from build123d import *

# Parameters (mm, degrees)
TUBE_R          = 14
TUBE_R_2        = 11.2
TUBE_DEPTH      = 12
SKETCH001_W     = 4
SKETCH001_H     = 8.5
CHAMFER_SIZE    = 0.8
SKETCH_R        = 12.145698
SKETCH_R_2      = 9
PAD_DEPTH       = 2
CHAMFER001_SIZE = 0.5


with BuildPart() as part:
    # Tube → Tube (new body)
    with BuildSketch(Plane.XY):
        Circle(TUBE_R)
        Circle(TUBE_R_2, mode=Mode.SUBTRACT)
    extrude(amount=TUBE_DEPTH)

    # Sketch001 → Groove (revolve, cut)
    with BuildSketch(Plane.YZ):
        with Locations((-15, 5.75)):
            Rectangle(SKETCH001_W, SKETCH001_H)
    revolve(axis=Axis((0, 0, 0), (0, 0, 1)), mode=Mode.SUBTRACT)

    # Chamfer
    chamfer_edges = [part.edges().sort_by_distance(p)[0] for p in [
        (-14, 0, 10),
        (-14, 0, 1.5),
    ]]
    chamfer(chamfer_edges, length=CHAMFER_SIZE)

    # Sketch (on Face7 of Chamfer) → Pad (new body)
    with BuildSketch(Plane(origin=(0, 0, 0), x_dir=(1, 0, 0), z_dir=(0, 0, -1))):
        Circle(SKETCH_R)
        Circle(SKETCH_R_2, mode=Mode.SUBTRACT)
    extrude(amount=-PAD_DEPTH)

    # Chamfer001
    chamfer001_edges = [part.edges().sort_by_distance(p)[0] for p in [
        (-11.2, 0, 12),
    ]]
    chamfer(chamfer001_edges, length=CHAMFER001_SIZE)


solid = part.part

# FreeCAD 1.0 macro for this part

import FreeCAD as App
import Part
import Sketcher
Q = App.Units.Quantity


def edges_at(feature, points):
    """Names of the edges that pass closest to the given points."""
    edges = feature.Shape.Edges
    near = lambda p: min(range(len(edges)), key=lambda i: edges[i].distToShape(Part.Vertex(*p))[0])
    return sorted({f"Edge{near(p) + 1}" for p in points})


def add_polygon(sketch, points):
    """Adds a closed chain of lines whose ends are joined by coincident constraints."""
    first, n = sketch.GeometryCount, len(points)
    for a, b in zip(points, points[1:] + points[:1]):
        sketch.addGeometry(Part.LineSegment(App.Vector(*a, 0), App.Vector(*b, 0)), False)
    for i in range(n):
        sketch.addConstraint(Sketcher.Constraint("Coincident", first + i, 2, first + (i + 1) % n, 1))

doc = App.newDocument("Part")
body = doc.addObject("PartDesign::Body", "Body")

# Sketch on XY plane
sketch1 = doc.addObject("Sketcher::SketchObject", "Sketch")
body.addObject(sketch1)
sketch1.AttachmentSupport = (doc.XY_Plane, [""])
sketch1.MapMode = "FlatFace"
sketch1.addGeometry([
    Part.Circle(App.Vector(0, 0, 0), App.Vector(0, 0, 1), 14),
    Part.Circle(App.Vector(0, 0, 0), App.Vector(0, 0, 1), 11.2),
], False)
sketch1.addConstraint([
    Sketcher.Constraint("Coincident", 0, 3, -1, 1),
    Sketcher.Constraint("Coincident", 1, 3, -1, 1),
    Sketcher.Constraint("Diameter", 0, Q("28 mm")),
    Sketcher.Constraint("Diameter", 1, Q("22.4 mm")),
])
pad1 = doc.addObject("PartDesign::Pad", "Pad")
body.addObject(pad1)
pad1.Profile = sketch1
pad1.Length = 12

# Sketch on YZ plane
sketch2 = doc.addObject("Sketcher::SketchObject", "Sketch001")
body.addObject(sketch2)
sketch2.AttachmentSupport = (doc.YZ_Plane, [""])
sketch2.MapMode = "FlatFace"
add_polygon(sketch2, [(-17, 10), (-17, 1.5), (-13, 1.5), (-13, 10)])  # lines 0-3
sketch2.addConstraint([
    Sketcher.Constraint("Vertical", 0),
    Sketcher.Constraint("Horizontal", 1),
    Sketcher.Constraint("Vertical", 2),
    Sketcher.Constraint("Horizontal", 3),
    Sketcher.Constraint("DistanceX", 1, 1, 1, 2, Q("4 mm")),
    Sketcher.Constraint("DistanceY", 0, 2, 0, 1, Q("8.5 mm")),
    Sketcher.Constraint("DistanceX", 0, 2, -1, 1, Q("17 mm")),
    Sketcher.Constraint("DistanceY", -1, 1, 2, 2, Q("10 mm")),
])
groove = doc.addObject("PartDesign::Groove", "Groove")
body.addObject(groove)
groove.Profile = sketch2
groove.ReferenceAxis = (sketch2, ["V_Axis"])
groove.Angle = 360
doc.recompute()

chamfer = doc.addObject("PartDesign::Chamfer", "Chamfer")
body.addObject(chamfer)
chamfer.Base = (groove, edges_at(groove, [(-14, 0, 10), (-14, 0, 1.5)]))
chamfer.Size = 0.8

# Sketch on XY plane
sketch3 = doc.addObject("Sketcher::SketchObject", "Sketch002")
body.addObject(sketch3)
sketch3.AttachmentSupport = (doc.XY_Plane, [""])
sketch3.MapMode = "FlatFace"
sketch3.addGeometry([
    Part.Circle(App.Vector(0, 0, 0), App.Vector(0, 0, 1), 12.145698),
    Part.Circle(App.Vector(0, 0, 0), App.Vector(0, 0, 1), 9),
], False)
sketch3.addConstraint([
    Sketcher.Constraint("Coincident", 0, 3, -1, 1),
    Sketcher.Constraint("Coincident", 1, 3, -1, 1),
    Sketcher.Constraint("Diameter", 1, Q("18 mm")),
    Sketcher.Constraint("Diameter", 0, Q("24.291396 mm")),
])
pad2 = doc.addObject("PartDesign::Pad", "Pad001")
body.addObject(pad2)
pad2.Profile = sketch3
pad2.Length = 2
doc.recompute()

chamfer2 = doc.addObject("PartDesign::Chamfer", "Chamfer001")
body.addObject(chamfer2)
chamfer2.Base = (pad2, edges_at(pad2, [(-11.2, 0, 12)]))
chamfer2.Size = 0.5

doc.recompute()
